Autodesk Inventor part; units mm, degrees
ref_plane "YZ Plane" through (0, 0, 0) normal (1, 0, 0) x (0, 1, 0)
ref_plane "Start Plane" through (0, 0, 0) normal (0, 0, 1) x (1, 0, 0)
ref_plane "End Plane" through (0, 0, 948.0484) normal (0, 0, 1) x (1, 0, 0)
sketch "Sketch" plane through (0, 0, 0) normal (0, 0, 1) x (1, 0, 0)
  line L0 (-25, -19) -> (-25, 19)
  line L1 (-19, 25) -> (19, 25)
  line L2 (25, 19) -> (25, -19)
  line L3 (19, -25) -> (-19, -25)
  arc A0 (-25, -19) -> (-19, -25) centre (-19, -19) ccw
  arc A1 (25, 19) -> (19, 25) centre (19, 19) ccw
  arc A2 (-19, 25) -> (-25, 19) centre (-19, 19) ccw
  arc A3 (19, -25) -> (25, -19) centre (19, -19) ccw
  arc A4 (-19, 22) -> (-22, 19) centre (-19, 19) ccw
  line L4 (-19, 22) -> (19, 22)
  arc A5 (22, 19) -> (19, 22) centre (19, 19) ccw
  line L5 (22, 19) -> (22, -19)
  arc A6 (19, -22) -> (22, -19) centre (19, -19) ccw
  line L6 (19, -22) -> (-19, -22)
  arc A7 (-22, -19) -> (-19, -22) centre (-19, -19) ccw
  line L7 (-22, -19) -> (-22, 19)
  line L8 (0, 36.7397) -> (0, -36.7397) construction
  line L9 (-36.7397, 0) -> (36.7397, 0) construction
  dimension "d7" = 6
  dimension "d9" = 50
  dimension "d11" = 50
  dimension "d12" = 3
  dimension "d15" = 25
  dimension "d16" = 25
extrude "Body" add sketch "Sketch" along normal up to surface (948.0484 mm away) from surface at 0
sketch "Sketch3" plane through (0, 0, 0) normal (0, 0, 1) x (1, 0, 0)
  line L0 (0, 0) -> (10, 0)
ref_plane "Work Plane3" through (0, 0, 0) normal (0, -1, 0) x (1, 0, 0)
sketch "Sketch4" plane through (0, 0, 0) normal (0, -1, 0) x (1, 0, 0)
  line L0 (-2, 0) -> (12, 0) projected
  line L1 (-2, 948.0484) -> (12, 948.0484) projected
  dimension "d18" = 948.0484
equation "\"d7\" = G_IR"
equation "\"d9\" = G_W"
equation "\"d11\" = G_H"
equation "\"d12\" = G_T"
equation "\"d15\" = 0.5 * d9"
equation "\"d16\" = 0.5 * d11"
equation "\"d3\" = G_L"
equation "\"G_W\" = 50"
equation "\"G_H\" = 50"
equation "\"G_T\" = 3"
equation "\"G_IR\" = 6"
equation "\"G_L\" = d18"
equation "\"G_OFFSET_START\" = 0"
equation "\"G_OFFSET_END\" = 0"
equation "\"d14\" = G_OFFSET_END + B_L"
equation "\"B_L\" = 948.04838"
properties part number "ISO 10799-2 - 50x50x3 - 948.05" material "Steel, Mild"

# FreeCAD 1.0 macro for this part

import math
import FreeCAD as App
import Part
import Sketcher

V = App.Vector
Q = App.Units.Quantity

doc = App.newDocument("Part")
body = doc.addObject("PartDesign::Body", "Body")

# Sketch on XY plane
sketch1 = body.newObject("Sketcher::SketchObject", "Sketch")
sketch1.AttachmentSupport = (doc.getObject("XY_Plane"), [""])
sketch1.MapMode = "FlatFace"
sketch1.addGeometry([
    Part.LineSegment(V(-25, 19, 0), V(-25, -19, 0)),  # 0
    Part.ArcOfCircle(Part.Circle(V(-19, -19, 0), V(0, 0, 1), 6), math.radians(180), math.radians(270)),  # 1
    Part.LineSegment(V(-19, -25, 0), V(19, -25, 0)),  # 2
    Part.ArcOfCircle(Part.Circle(V(19, -19, 0), V(0, 0, 1), 6), math.radians(-90), math.radians(0)),  # 3
    Part.LineSegment(V(25, -19, 0), V(25, 19, 0)),  # 4
    Part.ArcOfCircle(Part.Circle(V(19, 19, 0), V(0, 0, 1), 6), math.radians(0), math.radians(90)),  # 5
    Part.LineSegment(V(19, 25, 0), V(-19, 25, 0)),  # 6
    Part.ArcOfCircle(Part.Circle(V(-19, 19, 0), V(0, 0, 1), 6), math.radians(90), math.radians(180)),  # 7
    Part.ArcOfCircle(Part.Circle(V(-19, 19, 0), V(0, 0, 1), 3), math.radians(90), math.radians(180)),  # 8
    Part.LineSegment(V(-19, 22, 0), V(19, 22, 0)),  # 9
    Part.ArcOfCircle(Part.Circle(V(19, 19, 0), V(0, 0, 1), 3), math.radians(0), math.radians(90)),  # 10
    Part.LineSegment(V(22, 19, 0), V(22, -19, 0)),  # 11
    Part.ArcOfCircle(Part.Circle(V(19, -19, 0), V(0, 0, 1), 3), math.radians(-90), math.radians(0)),  # 12
    Part.LineSegment(V(19, -22, 0), V(-19, -22, 0)),  # 13
    Part.ArcOfCircle(Part.Circle(V(-19, -19, 0), V(0, 0, 1), 3), math.radians(180), math.radians(270)),  # 14
    Part.LineSegment(V(-22, -19, 0), V(-22, 19, 0)),  # 15
], False)
sketch1.addConstraint([
    Sketcher.Constraint("Tangent", 0, 2, 1, 1),
    Sketcher.Constraint("Tangent", 1, 2, 2, 1),
    Sketcher.Constraint("Tangent", 2, 2, 3, 1),
    Sketcher.Constraint("Tangent", 3, 2, 4, 1),
    Sketcher.Constraint("Tangent", 4, 2, 5, 1),
    Sketcher.Constraint("Tangent", 5, 2, 6, 1),
    Sketcher.Constraint("Tangent", 6, 2, 7, 1),
    Sketcher.Constraint("Tangent", 7, 2, 0, 1),
    Sketcher.Constraint("Tangent", 8, 1, 9, 1),
    Sketcher.Constraint("Tangent", 9, 2, 10, 2),
    Sketcher.Constraint("Tangent", 10, 1, 11, 1),
    Sketcher.Constraint("Tangent", 11, 2, 12, 2),
    Sketcher.Constraint("Tangent", 12, 1, 13, 1),
    Sketcher.Constraint("Tangent", 13, 2, 14, 2),
    Sketcher.Constraint("Tangent", 14, 1, 15, 1),
    Sketcher.Constraint("Tangent", 15, 2, 8, 2),
    Sketcher.Constraint("Vertical", 0),
    Sketcher.Constraint("Horizontal", 2),
    Sketcher.Constraint("Vertical", 4),
    Sketcher.Constraint("Horizontal", 6),
    Sketcher.Constraint("Horizontal", 9),
    Sketcher.Constraint("Vertical", 11),
    Sketcher.Constraint("Horizontal", 13),
    Sketcher.Constraint("Vertical", 15),
    Sketcher.Constraint("Coincident", 8, 3, 7, 3),
    Sketcher.Constraint("Coincident", 10, 3, 5, 3),
    Sketcher.Constraint("Coincident", 12, 3, 3, 3),
    Sketcher.Constraint("Equal", 1, 3),
    Sketcher.Constraint("Equal", 3, 5),
    Sketcher.Constraint("Equal", 5, 7),
    Sketcher.Constraint("Equal", 12, 14),
    Sketcher.Constraint("Symmetric", 1, 3, 5, 3, -1, 1),
    Sketcher.Constraint("Equal", 13, 0),
    Sketcher.Constraint("Radius", 1, Q("6 mm")),
    Sketcher.Constraint("Radius", 8, Q("3 mm")),
    Sketcher.Constraint("DistanceX", 0, 2, -1, 1, Q("25 mm")),
])
pad1 = body.newObject("PartDesign::Pad", "Pad")
pad1.Profile = sketch1
pad1.Length = 948.0484

doc.recompute()
